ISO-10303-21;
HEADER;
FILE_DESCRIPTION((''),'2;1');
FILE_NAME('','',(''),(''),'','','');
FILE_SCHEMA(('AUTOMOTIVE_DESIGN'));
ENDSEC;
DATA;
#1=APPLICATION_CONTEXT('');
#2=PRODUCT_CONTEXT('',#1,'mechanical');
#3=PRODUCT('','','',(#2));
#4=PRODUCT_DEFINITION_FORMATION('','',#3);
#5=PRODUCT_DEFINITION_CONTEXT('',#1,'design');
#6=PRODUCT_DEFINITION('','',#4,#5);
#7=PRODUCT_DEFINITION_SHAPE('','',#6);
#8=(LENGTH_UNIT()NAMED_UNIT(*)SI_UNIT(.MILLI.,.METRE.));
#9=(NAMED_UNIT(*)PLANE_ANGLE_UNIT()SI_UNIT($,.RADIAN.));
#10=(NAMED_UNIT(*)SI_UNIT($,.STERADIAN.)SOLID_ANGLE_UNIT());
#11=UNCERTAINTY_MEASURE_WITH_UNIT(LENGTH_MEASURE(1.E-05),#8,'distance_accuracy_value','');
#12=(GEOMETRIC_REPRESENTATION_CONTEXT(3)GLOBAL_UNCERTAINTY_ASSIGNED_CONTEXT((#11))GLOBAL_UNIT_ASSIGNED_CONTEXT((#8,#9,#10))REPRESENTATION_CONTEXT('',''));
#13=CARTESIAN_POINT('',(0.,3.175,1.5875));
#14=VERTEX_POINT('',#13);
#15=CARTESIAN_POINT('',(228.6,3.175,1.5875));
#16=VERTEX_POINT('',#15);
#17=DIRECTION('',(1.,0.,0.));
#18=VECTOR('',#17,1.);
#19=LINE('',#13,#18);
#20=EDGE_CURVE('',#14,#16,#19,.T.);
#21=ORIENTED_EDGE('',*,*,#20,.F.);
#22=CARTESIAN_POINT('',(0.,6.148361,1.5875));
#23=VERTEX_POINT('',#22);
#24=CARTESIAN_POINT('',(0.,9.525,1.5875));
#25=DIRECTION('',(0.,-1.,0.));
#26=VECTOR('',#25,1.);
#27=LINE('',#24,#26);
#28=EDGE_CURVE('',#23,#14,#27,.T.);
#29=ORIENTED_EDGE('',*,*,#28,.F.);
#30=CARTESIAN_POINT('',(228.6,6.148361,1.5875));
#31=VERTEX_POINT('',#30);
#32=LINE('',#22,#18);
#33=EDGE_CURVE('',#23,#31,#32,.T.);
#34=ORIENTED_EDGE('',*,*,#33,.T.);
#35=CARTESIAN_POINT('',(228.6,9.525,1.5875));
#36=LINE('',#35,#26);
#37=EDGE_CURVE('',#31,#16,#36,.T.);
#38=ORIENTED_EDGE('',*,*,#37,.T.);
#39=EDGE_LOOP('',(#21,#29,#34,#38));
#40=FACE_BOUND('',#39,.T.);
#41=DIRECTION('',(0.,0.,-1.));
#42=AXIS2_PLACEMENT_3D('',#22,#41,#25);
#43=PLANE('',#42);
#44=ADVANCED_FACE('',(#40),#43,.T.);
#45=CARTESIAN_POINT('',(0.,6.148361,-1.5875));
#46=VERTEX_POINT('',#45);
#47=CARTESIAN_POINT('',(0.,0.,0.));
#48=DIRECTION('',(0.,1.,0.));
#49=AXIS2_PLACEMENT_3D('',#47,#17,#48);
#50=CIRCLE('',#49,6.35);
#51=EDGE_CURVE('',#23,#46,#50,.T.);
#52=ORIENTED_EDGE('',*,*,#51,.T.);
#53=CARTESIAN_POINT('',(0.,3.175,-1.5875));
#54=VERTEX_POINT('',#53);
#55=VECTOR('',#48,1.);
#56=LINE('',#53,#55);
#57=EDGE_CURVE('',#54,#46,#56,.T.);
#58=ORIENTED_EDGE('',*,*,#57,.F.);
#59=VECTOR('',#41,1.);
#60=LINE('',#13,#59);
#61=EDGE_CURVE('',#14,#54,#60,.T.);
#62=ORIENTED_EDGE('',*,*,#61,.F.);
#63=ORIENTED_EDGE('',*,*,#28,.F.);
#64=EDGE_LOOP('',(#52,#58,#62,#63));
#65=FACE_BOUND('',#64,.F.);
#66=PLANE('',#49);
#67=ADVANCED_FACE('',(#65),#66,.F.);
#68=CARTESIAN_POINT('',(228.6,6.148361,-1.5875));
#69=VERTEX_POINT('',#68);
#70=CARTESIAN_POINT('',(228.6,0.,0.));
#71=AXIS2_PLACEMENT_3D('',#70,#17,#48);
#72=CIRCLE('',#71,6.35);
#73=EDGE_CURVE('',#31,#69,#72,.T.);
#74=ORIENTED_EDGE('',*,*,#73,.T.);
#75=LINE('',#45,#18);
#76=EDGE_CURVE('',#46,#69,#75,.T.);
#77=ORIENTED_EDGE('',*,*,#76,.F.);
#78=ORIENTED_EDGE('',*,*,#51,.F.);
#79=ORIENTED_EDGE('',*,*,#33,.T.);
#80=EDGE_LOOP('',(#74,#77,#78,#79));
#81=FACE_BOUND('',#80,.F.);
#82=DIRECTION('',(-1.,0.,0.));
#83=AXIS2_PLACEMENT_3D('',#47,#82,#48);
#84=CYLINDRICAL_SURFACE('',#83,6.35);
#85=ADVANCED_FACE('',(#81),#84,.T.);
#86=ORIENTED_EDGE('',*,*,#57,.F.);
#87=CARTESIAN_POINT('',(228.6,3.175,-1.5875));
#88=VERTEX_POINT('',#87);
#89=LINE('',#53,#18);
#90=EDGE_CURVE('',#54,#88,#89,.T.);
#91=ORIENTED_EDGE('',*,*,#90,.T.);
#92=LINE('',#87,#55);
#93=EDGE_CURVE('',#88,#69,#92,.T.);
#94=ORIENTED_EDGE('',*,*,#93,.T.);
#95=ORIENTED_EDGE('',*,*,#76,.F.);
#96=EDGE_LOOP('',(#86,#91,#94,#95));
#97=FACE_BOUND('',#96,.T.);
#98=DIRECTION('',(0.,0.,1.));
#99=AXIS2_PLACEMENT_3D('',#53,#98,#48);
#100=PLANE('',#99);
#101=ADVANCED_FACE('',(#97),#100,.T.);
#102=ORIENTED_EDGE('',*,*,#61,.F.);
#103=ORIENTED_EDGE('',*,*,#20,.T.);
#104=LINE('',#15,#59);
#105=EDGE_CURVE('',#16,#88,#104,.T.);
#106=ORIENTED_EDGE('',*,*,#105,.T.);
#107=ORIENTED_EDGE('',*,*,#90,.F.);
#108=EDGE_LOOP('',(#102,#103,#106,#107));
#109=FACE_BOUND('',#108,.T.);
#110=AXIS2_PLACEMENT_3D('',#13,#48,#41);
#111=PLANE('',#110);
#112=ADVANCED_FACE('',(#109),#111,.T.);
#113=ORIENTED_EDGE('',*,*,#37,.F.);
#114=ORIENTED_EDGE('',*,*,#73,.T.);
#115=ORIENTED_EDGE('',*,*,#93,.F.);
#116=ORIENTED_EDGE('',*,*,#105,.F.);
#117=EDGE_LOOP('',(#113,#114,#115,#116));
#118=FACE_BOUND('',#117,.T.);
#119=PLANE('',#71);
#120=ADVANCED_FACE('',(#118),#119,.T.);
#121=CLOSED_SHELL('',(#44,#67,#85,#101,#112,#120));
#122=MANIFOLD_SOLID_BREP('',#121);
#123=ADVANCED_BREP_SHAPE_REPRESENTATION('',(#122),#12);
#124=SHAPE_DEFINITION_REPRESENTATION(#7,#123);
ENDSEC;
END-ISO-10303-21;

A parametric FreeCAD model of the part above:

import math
import FreeCAD as App
import Part
import Sketcher
Q = App.Units.Quantity

doc = App.newDocument("Part")
params = doc.addObject("Spreadsheet::Sheet", "Params")
for row, (alias, value) in enumerate([
    ("sketch1_radius", "0.25 in"),
    ("sketch1_height", "0.125 in"),
    ("pad1_length", "9 in"),
], start=1):
    params.set(f"A{row}", alias)
    params.set(f"B{row}", "=" + value)
    params.setAlias(f"B{row}", alias)

body = doc.addObject("PartDesign::Body", "Body")

sketch1 = body.newObject("Sketcher::SketchObject", "Sketch")
sketch1.AttachmentSupport = (doc.getObject("YZ_Plane"), [""])
sketch1.MapMode = "FlatFace"
sketch1.addGeometry(Part.LineSegment(App.Vector(3.2, 1.6, 0), App.Vector(6.1, 1.6, 0)), False)
sketch1.addGeometry(Part.ArcOfCircle(Part.Circle(App.Vector(0, 0, 0), App.Vector(0, 0, 1), 6.3), math.radians(14), math.radians(346)), False)
sketch1.addGeometry(Part.LineSegment(App.Vector(6.1, -1.6, 0), App.Vector(3.2, -1.6, 0)), False)
sketch1.addGeometry(Part.LineSegment(App.Vector(3.2, -1.6, 0), App.Vector(3.2, 1.6, 0)), False)
sketch1.addConstraint(Sketcher.Constraint("Coincident", 0, 2, 1, 1))
sketch1.addConstraint(Sketcher.Constraint("Coincident", 1, 2, 2, 1))
sketch1.addConstraint(Sketcher.Constraint("Coincident", 2, 2, 3, 1))
sketch1.addConstraint(Sketcher.Constraint("Coincident", 3, 2, 0, 1))
sketch1.addConstraint(Sketcher.Constraint("Horizontal", 0))
sketch1.addConstraint(Sketcher.Constraint("Horizontal", 2))
sketch1.addConstraint(Sketcher.Constraint("Vertical", 3))
sketch1.addConstraint(Sketcher.Constraint("Coincident", 1, 3, -1, 1))
sketch1.addConstraint(Sketcher.Constraint("Vertical", 0, 2, 1, 2))
sketch1.addConstraint(Sketcher.Constraint("Radius", 1, Q("0.25 in")))
sketch1.addConstraint(Sketcher.Constraint("DistanceY", 3, 1, 3, 2, Q("0.125 in")))
sketch1.addConstraint(Sketcher.Constraint("DistanceX", -1, 1, 2, 2, Q("0.125 in")))
sketch1.setExpression("Constraints[9]", "Params.sketch1_radius")
sketch1.setExpression("Constraints[10]", "Params.sketch1_height")
pad1 = body.newObject("PartDesign::Pad", "Pad")
pad1.Profile = sketch1
pad1.setExpression("Length", "Params.pad1_length")

doc.recompute()
